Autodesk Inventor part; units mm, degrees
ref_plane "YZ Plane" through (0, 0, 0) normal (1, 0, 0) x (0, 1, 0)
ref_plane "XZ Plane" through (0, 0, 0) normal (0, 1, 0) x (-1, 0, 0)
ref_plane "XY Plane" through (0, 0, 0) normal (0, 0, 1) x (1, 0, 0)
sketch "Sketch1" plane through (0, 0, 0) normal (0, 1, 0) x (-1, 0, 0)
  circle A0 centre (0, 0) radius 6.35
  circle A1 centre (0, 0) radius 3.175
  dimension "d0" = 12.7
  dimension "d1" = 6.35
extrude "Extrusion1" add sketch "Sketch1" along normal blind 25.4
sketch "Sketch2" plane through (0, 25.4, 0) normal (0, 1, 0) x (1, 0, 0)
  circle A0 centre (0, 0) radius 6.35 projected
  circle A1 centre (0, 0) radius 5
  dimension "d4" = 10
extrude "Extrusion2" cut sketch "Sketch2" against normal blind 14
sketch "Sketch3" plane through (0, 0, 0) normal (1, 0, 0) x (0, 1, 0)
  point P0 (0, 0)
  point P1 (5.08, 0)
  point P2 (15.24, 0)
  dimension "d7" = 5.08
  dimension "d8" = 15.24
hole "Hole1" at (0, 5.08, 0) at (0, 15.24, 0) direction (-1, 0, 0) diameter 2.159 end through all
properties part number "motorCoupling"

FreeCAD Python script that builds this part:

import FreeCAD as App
import Part
import Sketcher
Q = App.Units.Quantity

doc = App.newDocument("Part")
params = doc.addObject("Spreadsheet::Sheet", "Params")
for row, (alias, value) in enumerate([
    ("sketch1_diameter", "0.5 in"),
    ("sketch1_diameter2", "0.25 in"),
    ("pad1_length", "1 in"),
    ("sketch2_diameter", "0.5 in"),
    ("pocket1_length", "14 mm"),
    ("sketch3_diameter", "0.085 in"),
    ("hole_diameter", "0.085 in"),
], start=1):
    params.set(f"A{row}", alias)
    params.set(f"B{row}", "=" + value)
    params.setAlias(f"B{row}", alias)

body = doc.addObject("PartDesign::Body", "Body")

sketch1 = doc.addObject("Sketcher::SketchObject", "Sketch")
body.addObject(sketch1)
sketch1.AttachmentSupport = (doc.XZ_Plane, [""])
sketch1.MapMode = "FlatFace"
sketch1.addGeometry(Part.Circle(App.Vector(0, 0, 0), App.Vector(0, 0, 1), 6.3), False)
sketch1.addGeometry(Part.Circle(App.Vector(0, 0, 0), App.Vector(0, 0, 1), 3.2), False)
sketch1.addConstraint(Sketcher.Constraint("Coincident", 0, 3, -1, 1))
sketch1.addConstraint(Sketcher.Constraint("Coincident", 1, 3, -1, 1))
sketch1.addConstraint(Sketcher.Constraint("Diameter", 0, Q("0.5 in")))
sketch1.addConstraint(Sketcher.Constraint("Diameter", 1, Q("0.25 in")))
sketch1.setExpression("Constraints[2]", "Params.sketch1_diameter")
sketch1.setExpression("Constraints[3]", "Params.sketch1_diameter2")
pad1 = doc.addObject("PartDesign::Pad", "Pad")
body.addObject(pad1)
pad1.Profile = sketch1
pad1.setExpression("Length", "Params.pad1_length")
pad1.Reversed = True

sketch2 = doc.addObject("Sketcher::SketchObject", "Sketch001")
body.addObject(sketch2)
sketch2.AttachmentSupport = (doc.XZ_Plane, [""])
sketch2.MapMode = "FlatFace"
sketch2.AttachmentOffset = App.Placement(App.Vector(0, 0, -1 * 25.4), App.Rotation())
sketch2.addGeometry(Part.Circle(App.Vector(0, 0, 0), App.Vector(0, 0, 1), 6), False)
sketch2.addGeometry(Part.Circle(App.Vector(0, 0, 0), App.Vector(0, 0, 1), 5), False)
sketch2.addConstraint(Sketcher.Constraint("Coincident", 0, 3, -1, 1))
sketch2.addConstraint(Sketcher.Constraint("Coincident", 1, 3, -1, 1))
sketch2.addConstraint(Sketcher.Constraint("Diameter", 0, Q("0.5 in")))
sketch2.addConstraint(Sketcher.Constraint("Diameter", 1, Q("0.3937 in")))
sketch2.setExpression("Constraints[2]", "Params.sketch2_diameter")
pocket1 = doc.addObject("PartDesign::Pocket", "Pocket")
body.addObject(pocket1)
pocket1.Profile = sketch2
pocket1.setExpression("Length", "Params.pocket1_length")
pocket1.Reversed = True

sketch3 = doc.addObject("Sketcher::SketchObject", "Sketch002")
body.addObject(sketch3)
sketch3.AttachmentSupport = (doc.YZ_Plane, [""])
sketch3.MapMode = "FlatFace"
sketch3.addGeometry(Part.Circle(App.Vector(5.1, 0, 0), App.Vector(0, 0, 1), 1.1), False)
sketch3.addGeometry(Part.Circle(App.Vector(15.2, 0, 0), App.Vector(0, 0, 1), 1.1), False)
sketch3.addConstraint(Sketcher.Constraint("Equal", 0, 1))
sketch3.addConstraint(Sketcher.Constraint("PointOnObject", 0, 3, -1))
sketch3.addConstraint(Sketcher.Constraint("PointOnObject", 1, 3, -1))
sketch3.addConstraint(Sketcher.Constraint("Diameter", 0, Q("0.085 in")))
sketch3.addConstraint(Sketcher.Constraint("DistanceX", -1, 1, 0, 3, Q("0.2 in")))
sketch3.addConstraint(Sketcher.Constraint("DistanceX", -1, 1, 1, 3, Q("0.6 in")))
sketch3.setExpression("Constraints[3]", "Params.sketch3_diameter")
doc.recompute()
hole = doc.addObject("PartDesign::Hole", "Hole")
body.addObject(hole)
hole.Profile = sketch3
hole.ThreadType = "None"
hole.setExpression("Diameter", "Params.hole_diameter")
hole.DepthType = "ThroughAll"

doc.recompute()
